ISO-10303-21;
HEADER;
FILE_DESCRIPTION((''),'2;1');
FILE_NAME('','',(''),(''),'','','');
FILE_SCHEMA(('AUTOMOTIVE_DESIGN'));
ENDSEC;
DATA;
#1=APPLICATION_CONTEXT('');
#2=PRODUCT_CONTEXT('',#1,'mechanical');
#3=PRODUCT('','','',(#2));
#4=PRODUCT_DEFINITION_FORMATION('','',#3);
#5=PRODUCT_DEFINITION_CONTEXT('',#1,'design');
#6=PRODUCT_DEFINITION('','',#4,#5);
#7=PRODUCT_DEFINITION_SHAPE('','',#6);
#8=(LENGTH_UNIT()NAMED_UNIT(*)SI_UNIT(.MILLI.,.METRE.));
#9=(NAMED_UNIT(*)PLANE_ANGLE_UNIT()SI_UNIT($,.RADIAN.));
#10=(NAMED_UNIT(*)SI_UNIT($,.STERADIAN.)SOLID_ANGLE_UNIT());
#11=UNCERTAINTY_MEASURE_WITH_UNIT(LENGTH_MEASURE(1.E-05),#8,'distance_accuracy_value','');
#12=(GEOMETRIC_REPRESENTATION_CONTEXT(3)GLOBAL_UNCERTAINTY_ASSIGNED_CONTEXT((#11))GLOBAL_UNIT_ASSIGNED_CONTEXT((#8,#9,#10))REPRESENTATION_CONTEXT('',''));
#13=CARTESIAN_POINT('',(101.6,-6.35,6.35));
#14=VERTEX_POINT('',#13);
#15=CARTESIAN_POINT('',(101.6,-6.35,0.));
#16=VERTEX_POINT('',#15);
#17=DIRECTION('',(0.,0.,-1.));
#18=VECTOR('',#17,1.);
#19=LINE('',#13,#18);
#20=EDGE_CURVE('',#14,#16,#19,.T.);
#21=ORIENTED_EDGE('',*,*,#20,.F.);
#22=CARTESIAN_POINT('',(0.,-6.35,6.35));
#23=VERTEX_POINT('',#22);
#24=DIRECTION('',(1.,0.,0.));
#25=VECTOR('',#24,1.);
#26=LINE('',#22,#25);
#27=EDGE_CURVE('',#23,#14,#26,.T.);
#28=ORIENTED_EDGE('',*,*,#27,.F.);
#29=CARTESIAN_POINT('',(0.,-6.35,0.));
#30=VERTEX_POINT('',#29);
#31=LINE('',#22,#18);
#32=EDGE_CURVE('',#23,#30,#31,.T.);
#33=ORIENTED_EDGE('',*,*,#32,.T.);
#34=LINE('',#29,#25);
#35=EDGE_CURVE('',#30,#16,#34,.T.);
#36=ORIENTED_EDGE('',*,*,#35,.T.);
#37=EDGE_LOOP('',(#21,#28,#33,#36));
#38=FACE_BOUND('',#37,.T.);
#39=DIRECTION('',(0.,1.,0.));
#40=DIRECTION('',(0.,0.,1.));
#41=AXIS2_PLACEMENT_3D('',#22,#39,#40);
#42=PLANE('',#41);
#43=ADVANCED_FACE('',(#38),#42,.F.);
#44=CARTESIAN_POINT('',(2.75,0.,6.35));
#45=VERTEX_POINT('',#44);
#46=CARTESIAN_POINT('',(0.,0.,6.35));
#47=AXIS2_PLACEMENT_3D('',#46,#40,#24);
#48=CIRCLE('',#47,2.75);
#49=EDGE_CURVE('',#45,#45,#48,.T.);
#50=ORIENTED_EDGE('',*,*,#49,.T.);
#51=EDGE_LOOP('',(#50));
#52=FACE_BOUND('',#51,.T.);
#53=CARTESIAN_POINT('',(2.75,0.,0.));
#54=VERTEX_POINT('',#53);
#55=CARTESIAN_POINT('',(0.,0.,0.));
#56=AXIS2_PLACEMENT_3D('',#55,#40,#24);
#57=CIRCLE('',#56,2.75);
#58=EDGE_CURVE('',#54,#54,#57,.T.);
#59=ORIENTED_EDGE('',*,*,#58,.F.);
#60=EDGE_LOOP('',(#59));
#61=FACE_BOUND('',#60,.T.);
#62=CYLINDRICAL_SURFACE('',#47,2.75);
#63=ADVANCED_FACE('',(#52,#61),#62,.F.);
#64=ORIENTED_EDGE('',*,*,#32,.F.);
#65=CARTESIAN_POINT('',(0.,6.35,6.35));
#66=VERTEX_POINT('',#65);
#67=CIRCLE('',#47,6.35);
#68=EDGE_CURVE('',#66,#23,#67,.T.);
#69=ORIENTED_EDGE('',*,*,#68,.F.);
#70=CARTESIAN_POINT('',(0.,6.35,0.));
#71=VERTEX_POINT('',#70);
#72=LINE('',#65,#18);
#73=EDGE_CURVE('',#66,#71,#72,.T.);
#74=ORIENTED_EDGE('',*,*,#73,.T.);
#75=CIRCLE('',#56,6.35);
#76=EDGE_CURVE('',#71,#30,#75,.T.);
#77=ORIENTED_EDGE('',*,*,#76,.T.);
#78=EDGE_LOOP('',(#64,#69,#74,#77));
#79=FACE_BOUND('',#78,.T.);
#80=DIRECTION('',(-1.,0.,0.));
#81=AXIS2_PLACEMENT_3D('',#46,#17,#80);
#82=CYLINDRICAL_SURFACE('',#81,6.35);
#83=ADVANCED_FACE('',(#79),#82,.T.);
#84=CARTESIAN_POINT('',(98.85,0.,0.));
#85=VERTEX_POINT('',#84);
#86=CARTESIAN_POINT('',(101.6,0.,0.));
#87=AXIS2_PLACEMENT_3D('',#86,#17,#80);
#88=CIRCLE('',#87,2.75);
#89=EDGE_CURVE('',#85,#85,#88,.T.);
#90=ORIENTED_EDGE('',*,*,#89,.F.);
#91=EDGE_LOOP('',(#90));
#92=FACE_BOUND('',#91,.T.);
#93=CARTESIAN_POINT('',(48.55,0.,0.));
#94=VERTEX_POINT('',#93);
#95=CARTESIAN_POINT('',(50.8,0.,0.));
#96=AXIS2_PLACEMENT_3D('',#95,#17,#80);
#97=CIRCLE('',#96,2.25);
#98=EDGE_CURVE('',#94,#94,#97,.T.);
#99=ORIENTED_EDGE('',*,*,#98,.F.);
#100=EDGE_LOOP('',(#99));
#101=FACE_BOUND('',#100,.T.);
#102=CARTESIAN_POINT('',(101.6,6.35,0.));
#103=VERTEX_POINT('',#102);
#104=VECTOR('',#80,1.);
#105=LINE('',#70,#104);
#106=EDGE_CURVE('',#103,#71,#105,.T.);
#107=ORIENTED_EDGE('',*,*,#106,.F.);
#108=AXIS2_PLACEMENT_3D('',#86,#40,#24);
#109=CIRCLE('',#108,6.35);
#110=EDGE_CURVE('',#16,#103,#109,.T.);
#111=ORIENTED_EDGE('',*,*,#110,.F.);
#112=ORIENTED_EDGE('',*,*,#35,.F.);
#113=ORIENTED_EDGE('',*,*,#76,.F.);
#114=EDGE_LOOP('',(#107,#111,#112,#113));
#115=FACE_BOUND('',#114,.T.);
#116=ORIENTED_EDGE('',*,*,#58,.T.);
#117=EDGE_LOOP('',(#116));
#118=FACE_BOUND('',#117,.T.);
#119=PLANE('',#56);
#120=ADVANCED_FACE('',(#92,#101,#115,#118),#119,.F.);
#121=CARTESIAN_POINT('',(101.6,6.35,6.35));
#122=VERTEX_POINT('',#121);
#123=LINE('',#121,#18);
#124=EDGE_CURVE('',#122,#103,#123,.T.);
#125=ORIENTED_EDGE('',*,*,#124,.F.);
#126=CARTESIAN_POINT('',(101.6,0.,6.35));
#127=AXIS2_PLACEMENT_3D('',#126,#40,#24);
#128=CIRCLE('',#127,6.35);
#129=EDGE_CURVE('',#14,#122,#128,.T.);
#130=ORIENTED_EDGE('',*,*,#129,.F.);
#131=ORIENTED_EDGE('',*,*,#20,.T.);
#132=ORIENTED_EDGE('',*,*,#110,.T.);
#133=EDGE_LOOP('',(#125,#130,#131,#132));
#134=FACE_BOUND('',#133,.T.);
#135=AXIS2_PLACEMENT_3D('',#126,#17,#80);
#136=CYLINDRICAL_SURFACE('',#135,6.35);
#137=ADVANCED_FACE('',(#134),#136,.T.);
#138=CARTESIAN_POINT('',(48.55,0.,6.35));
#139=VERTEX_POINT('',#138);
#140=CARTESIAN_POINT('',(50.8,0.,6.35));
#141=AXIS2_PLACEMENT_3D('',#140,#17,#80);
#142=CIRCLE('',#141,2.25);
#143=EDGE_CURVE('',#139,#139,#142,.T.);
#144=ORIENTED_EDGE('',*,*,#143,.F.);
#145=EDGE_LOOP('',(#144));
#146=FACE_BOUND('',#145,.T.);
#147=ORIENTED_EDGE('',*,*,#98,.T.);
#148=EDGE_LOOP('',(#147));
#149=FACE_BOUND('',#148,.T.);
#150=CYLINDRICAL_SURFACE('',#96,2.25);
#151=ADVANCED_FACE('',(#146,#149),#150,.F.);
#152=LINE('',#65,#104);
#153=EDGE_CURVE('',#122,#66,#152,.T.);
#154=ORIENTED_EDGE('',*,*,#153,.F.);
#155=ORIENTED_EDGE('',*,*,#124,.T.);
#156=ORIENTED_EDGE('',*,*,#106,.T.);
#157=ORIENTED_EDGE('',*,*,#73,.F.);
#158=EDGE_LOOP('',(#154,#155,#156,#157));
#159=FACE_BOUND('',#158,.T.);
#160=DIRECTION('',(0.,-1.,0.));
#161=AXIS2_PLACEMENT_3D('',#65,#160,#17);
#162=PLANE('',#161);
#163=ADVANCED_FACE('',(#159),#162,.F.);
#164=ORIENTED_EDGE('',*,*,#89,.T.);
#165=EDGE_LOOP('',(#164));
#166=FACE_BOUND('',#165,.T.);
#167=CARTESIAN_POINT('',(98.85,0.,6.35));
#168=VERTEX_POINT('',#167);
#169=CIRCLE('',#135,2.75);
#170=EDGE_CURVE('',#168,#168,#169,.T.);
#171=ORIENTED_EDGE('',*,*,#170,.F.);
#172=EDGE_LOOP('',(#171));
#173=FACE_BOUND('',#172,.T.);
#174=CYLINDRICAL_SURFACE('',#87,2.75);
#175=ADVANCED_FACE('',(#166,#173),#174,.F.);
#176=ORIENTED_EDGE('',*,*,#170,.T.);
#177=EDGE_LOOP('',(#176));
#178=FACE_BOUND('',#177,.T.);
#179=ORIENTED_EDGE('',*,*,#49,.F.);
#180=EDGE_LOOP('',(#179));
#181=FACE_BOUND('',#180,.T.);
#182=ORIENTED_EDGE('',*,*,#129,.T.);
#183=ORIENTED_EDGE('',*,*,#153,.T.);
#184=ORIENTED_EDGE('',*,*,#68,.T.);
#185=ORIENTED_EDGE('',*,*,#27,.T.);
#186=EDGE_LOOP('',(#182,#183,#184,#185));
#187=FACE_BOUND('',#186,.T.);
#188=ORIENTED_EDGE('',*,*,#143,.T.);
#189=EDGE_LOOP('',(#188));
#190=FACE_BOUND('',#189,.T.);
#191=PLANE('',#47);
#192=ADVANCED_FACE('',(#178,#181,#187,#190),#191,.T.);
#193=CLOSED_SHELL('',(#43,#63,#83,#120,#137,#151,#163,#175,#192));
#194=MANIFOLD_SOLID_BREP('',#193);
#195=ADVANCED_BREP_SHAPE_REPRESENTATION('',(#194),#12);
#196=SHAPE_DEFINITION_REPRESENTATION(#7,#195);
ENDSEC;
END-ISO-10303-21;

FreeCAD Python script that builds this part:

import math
import FreeCAD as App
import Part
import Sketcher
from FreeCAD import Vector
Q = App.Units.Quantity

doc = App.newDocument("Part")
body = doc.addObject("PartDesign::Body", "Body")

# Sketch on XY plane
sketch1 = body.newObject("Sketcher::SketchObject", "Sketch")
sketch1.AttachmentSupport = (doc.getObject("XY_Plane"), [""])
sketch1.MapMode = "FlatFace"
sketch1.addGeometry([
    Part.LineSegment(Vector(102, 6, 0), Vector(0, 6, 0)),
    Part.ArcOfCircle(Part.Circle(Vector(0, 0, 0), Vector(0, 0, 1), 6), math.radians(90), math.radians(270)),
    Part.LineSegment(Vector(0, -6, 0), Vector(102, -6, 0)),
    Part.ArcOfCircle(Part.Circle(Vector(102, 0, 0), Vector(0, 0, 1), 6), math.radians(-90), math.radians(90)),
], False)
sketch1.addConstraint([
    Sketcher.Constraint("Tangent", 0, 2, 1, 1),
    Sketcher.Constraint("Tangent", 1, 2, 2, 1),
    Sketcher.Constraint("Tangent", 2, 2, 3, 1),
    Sketcher.Constraint("Tangent", 3, 2, 0, 1),
    Sketcher.Constraint("Horizontal", 0),
    Sketcher.Constraint("Horizontal", 2),
    Sketcher.Constraint("Coincident", 1, 3, -1, 1),
    Sketcher.Constraint("DistanceX", 0, 2, 0, 1, Q("4 in")),
    Sketcher.Constraint("Radius", 1, Q("0.25 in")),
])
pad1 = body.newObject("PartDesign::Pad", "Pad")
pad1.Profile = sketch1
pad1.Length = Q("0.25 in")

# Sketch on XY plane
sketch2 = body.newObject("Sketcher::SketchObject", "Sketch001")
sketch2.AttachmentSupport = (doc.getObject("XY_Plane"), [""])
sketch2.MapMode = "FlatFace"
sketch2.addGeometry(Part.Circle(Vector(101.6, 0, 0), Vector(0, 0, 1), 2.8), False)
sketch2.addConstraint([
    Sketcher.Constraint("PointOnObject", 0, 3, -1),
    Sketcher.Constraint("DistanceX", -1, 1, 0, 3, Q("4 in")),
    Sketcher.Constraint("Diameter", 0, 5.5),
])
doc.recompute()
hole = body.newObject("PartDesign::Hole", "Hole")
hole.Profile = sketch2
hole.ThreadType = "None"
hole.Diameter = 5.5
hole.DepthType = "ThroughAll"
hole.Reversed = True

# Sketch on XY plane
sketch3 = body.newObject("Sketcher::SketchObject", "Sketch002")
sketch3.AttachmentSupport = (doc.getObject("XY_Plane"), [""])
sketch3.MapMode = "FlatFace"
sketch3.addGeometry(Part.Circle(Vector(50.8, 0, 0), Vector(0, 0, 1), 2.2), False)
sketch3.addConstraint([
    Sketcher.Constraint("PointOnObject", 0, 3, -1),
    Sketcher.Constraint("DistanceX", -1, 1, 0, 3, Q("2 in")),
    Sketcher.Constraint("Diameter", 0, 4.5),
])
doc.recompute()
hole2 = body.newObject("PartDesign::Hole", "Hole001")
hole2.Profile = sketch3
hole2.ThreadType = "None"
hole2.Diameter = 4.5
hole2.DepthType = "ThroughAll"
hole2.Reversed = True

# Sketch on XY plane
sketch4 = body.newObject("Sketcher::SketchObject", "Sketch003")
sketch4.AttachmentSupport = (doc.getObject("XY_Plane"), [""])
sketch4.MapMode = "FlatFace"
sketch4.AttachmentOffset = App.Placement(Vector(0, 0, 0.25 * 25.4), App.Rotation())
sketch4.addGeometry(Part.Circle(Vector(0, 0, 0), Vector(0, 0, 1), 2.8), False)
sketch4.addConstraint([
    Sketcher.Constraint("Coincident", 0, 3, -1, 1),
    Sketcher.Constraint("Diameter", 0, 5.5),
])
doc.recompute()
hole3 = body.newObject("PartDesign::Hole", "Hole002")
hole3.Profile = sketch4
hole3.ThreadType = "None"
hole3.Diameter = 5.5
hole3.DepthType = "ThroughAll"

doc.recompute()
